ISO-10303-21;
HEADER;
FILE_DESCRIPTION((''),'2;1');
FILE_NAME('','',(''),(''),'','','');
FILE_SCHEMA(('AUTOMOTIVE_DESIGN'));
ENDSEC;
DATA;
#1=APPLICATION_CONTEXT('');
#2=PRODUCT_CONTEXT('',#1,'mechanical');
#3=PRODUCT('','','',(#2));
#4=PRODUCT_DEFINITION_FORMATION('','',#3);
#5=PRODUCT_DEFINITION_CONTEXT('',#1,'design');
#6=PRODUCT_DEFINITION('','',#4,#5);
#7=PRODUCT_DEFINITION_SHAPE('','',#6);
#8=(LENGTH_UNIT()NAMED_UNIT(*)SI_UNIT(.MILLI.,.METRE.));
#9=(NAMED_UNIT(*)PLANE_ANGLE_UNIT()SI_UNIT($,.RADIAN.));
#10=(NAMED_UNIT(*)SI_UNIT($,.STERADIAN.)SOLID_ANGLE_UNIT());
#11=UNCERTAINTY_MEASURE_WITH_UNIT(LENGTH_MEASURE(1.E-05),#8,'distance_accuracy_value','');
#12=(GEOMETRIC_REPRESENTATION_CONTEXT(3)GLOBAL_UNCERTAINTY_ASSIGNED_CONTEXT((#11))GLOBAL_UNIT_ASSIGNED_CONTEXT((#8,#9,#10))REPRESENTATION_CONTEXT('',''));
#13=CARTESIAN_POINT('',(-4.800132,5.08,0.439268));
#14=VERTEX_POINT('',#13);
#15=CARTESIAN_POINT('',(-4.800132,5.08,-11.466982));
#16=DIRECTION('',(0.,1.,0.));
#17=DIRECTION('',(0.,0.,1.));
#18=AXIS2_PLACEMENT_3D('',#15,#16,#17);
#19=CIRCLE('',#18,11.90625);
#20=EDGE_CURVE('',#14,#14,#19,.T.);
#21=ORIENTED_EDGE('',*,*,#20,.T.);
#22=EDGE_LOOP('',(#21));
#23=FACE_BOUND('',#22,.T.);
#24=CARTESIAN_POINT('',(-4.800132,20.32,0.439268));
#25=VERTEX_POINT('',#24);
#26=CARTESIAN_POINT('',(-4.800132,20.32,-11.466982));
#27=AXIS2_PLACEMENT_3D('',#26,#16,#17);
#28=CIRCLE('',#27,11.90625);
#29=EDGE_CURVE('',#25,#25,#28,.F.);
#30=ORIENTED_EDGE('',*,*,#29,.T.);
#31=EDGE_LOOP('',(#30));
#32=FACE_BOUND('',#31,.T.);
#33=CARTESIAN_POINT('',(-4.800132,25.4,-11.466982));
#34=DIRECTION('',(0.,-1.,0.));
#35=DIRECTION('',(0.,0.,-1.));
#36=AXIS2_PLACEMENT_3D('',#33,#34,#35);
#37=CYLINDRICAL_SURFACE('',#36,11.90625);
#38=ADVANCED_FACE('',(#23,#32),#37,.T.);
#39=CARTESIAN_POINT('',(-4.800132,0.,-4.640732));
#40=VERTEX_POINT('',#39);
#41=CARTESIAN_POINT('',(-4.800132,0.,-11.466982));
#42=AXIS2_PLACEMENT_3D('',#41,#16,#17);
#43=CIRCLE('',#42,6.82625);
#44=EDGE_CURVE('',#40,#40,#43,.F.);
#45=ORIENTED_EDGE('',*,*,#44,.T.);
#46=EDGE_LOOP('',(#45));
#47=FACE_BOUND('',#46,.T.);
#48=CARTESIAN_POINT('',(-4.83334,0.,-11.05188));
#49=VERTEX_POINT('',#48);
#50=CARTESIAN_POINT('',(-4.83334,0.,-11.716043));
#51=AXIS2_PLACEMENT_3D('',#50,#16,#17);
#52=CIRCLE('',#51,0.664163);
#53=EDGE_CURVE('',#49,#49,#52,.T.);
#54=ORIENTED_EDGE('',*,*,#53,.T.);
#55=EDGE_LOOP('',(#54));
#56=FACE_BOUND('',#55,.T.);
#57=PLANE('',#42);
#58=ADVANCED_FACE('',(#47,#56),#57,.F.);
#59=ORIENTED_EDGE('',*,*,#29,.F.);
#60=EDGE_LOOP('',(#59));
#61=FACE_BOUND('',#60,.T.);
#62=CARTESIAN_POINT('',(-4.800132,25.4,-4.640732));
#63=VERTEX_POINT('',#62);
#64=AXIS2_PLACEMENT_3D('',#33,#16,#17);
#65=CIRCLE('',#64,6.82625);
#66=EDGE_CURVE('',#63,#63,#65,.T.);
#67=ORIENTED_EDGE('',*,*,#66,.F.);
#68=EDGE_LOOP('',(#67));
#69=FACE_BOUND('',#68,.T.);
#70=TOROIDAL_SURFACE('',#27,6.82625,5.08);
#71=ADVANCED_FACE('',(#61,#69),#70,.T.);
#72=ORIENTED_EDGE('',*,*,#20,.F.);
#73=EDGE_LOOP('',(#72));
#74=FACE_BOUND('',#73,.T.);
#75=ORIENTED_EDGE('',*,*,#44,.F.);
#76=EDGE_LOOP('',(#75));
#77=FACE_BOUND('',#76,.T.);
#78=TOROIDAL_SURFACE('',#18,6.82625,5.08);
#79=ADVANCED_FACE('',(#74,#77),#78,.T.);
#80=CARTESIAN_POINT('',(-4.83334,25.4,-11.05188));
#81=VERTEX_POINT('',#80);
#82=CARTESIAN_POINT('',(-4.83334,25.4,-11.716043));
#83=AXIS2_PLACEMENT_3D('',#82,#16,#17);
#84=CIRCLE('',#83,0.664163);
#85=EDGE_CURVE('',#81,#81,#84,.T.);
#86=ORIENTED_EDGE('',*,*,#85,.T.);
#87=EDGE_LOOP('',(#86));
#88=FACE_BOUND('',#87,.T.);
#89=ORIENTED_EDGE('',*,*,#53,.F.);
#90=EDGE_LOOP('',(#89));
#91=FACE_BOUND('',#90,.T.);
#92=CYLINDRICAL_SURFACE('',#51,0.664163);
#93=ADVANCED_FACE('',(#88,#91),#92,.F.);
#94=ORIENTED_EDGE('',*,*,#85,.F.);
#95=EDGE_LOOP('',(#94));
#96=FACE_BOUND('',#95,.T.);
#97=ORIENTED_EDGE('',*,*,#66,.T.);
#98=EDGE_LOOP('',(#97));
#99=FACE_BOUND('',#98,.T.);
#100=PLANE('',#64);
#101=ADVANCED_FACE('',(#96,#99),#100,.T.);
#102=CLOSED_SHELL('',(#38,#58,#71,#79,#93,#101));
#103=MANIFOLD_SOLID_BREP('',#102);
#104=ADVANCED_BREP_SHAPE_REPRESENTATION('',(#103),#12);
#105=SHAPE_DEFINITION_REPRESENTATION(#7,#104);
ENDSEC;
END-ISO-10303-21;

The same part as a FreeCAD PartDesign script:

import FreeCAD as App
import Part
import Sketcher
Q = App.Units.Quantity


def edges_at(feature, points):
    """Names of the edges that pass closest to the given points."""
    edges = feature.Shape.Edges
    near = lambda p: min(range(len(edges)), key=lambda i: edges[i].distToShape(Part.Vertex(*p))[0])
    return sorted({f"Edge{near(p) + 1}" for p in points})

doc = App.newDocument("Part")
body = doc.addObject("PartDesign::Body", "Body")

# Sketch on XZ plane
sketch1 = body.newObject("Sketcher::SketchObject", "Sketch")
sketch1.AttachmentSupport = (doc.getObject("XZ_Plane"), [""])
sketch1.MapMode = "FlatFace"
sketch1.addGeometry(Part.Circle(App.Vector(-4.800132, -11.466982, 0), App.Vector(0, 0, 1), 11.90625), False)
sketch1.addConstraint(Sketcher.Constraint("Diameter", 0, Q("0.9375 in")))
sketch1.addConstraint(Sketcher.Constraint("DistanceX", 0, 3, -1, 1, Q("4.800132 mm")))
sketch1.addConstraint(Sketcher.Constraint("DistanceY", 0, 3, -1, 1, Q("11.466982 mm")))
pad1 = body.newObject("PartDesign::Pad", "Pad")
pad1.Profile = sketch1
pad1.Length = Q("1 in")
pad1.Reversed = True
doc.recompute()

fillet = body.newObject("PartDesign::Fillet", "Fillet")
fillet.Base = (pad1, edges_at(pad1, [(-16.706, 25.4, -11.467)]))
fillet.Radius = Q("0.2 in")
doc.recompute()

fillet2 = body.newObject("PartDesign::Fillet", "Fillet001")
fillet2.Base = (fillet, edges_at(fillet, [(-16.706, 0, -11.467)]))
fillet2.Radius = Q("0.2 in")

# Sketch on XZ plane
sketch2 = body.newObject("Sketcher::SketchObject", "Sketch001")
sketch2.AttachmentSupport = (doc.getObject("XZ_Plane"), [""])
sketch2.MapMode = "FlatFace"
sketch2.AttachmentOffset = App.Placement(App.Vector(0, 0, -1 * 25.4), App.Rotation())
sketch2.addGeometry(Part.Circle(App.Vector(-4.83334, -11.716043, 0), App.Vector(0, 0, 1), 0.664163), False)
sketch2.addConstraint(Sketcher.Constraint("Diameter", 0, Q("1.328326 mm")))
sketch2.addConstraint(Sketcher.Constraint("DistanceX", 0, 3, -1, 1, Q("4.83334 mm")))
sketch2.addConstraint(Sketcher.Constraint("DistanceY", 0, 3, -1, 1, Q("11.716043 mm")))
pocket1 = body.newObject("PartDesign::Pocket", "Pocket")
pocket1.Profile = sketch2
pocket1.Length = Q("1 in")
pocket1.Reversed = True

doc.recompute()
